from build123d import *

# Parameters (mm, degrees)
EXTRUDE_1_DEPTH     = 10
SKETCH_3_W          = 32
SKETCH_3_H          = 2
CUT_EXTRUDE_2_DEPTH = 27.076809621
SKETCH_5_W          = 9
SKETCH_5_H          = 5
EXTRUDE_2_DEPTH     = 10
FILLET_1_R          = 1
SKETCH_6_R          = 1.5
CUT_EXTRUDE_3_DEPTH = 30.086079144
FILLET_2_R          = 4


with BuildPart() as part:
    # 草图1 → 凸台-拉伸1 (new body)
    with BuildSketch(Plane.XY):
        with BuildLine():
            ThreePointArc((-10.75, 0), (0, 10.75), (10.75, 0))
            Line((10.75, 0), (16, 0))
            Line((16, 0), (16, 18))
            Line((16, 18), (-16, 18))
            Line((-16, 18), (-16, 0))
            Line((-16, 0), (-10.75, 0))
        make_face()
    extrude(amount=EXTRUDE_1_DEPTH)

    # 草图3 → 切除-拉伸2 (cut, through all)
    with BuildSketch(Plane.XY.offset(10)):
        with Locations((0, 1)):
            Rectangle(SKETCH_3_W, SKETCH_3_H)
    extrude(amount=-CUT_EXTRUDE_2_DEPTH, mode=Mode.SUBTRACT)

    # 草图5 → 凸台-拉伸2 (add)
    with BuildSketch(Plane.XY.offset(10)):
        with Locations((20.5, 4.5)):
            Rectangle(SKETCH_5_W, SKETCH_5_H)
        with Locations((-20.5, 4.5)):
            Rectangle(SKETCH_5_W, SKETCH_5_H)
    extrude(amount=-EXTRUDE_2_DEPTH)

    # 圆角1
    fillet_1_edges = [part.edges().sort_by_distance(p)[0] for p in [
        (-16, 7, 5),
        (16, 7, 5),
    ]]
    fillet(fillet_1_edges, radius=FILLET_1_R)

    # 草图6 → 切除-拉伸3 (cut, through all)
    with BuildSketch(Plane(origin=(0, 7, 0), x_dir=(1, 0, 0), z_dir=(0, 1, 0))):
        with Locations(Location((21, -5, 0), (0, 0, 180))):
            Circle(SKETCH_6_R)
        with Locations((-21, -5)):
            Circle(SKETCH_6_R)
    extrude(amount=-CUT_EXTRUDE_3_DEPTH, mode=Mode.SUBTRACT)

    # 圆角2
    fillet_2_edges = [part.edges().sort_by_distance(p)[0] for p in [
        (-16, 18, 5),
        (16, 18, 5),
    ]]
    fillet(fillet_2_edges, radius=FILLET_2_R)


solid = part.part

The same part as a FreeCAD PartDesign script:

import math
import FreeCAD as App
import Part
import Sketcher
Q = App.Units.Quantity


def edges_at(feature, points):
    """Names of the edges that pass closest to the given points."""
    edges = feature.Shape.Edges
    near = lambda p: min(range(len(edges)), key=lambda i: edges[i].distToShape(Part.Vertex(*p))[0])
    return sorted({f"Edge{near(p) + 1}" for p in points})

doc = App.newDocument("Part")
params = doc.addObject("Spreadsheet::Sheet", "Params")
for row, (alias, value) in enumerate([
    ("sketch1_width", "32 mm"),
    ("sketch1_height", "18 mm"),
    ("sketch1_radius", "10.75 mm"),
    ("pad1_length", "10 mm"),
    ("sketch2_width", "32 mm"),
    ("sketch2_height", "2 mm"),
    ("sketch3_width", "9 mm"),
    ("sketch3_height", "5 mm"),
    ("pad2_length", "10 mm"),
    ("fillet_radius", "1 mm"),
    ("sketch4_diameter", "3 mm"),
    ("fillet2_radius", "4 mm"),
], start=1):
    params.set(f"A{row}", alias)
    params.set(f"B{row}", "=" + value)
    params.setAlias(f"B{row}", alias)

body = doc.addObject("PartDesign::Body", "Body")

# Sketch on XY plane
sketch1 = body.newObject("Sketcher::SketchObject", "Sketch")
sketch1.AttachmentSupport = (doc.getObject("XY_Plane"), [""])
sketch1.MapMode = "FlatFace"
sketch1.addGeometry([
    Part.ArcOfCircle(Part.Circle(App.Vector(0, 0, 0), App.Vector(0, 0, 1), 11), math.radians(0), math.radians(180)),  # 0
    Part.LineSegment(App.Vector(11, 0, 0), App.Vector(16, 0, 0)),  # 1
    Part.LineSegment(App.Vector(16, 0, 0), App.Vector(16, 18, 0)),  # 2
    Part.LineSegment(App.Vector(16, 18, 0), App.Vector(-16, 18, 0)),  # 3
    Part.LineSegment(App.Vector(-16, 18, 0), App.Vector(-16, 0, 0)),  # 4
    Part.LineSegment(App.Vector(-16, 0, 0), App.Vector(-11, 0, 0)),  # 5
], False)
sketch1.addConstraint([
    Sketcher.Constraint("Coincident", 0, 1, 1, 1),
    Sketcher.Constraint("Coincident", 1, 2, 2, 1),
    Sketcher.Constraint("Coincident", 2, 2, 3, 1),
    Sketcher.Constraint("Coincident", 3, 2, 4, 1),
    Sketcher.Constraint("Coincident", 4, 2, 5, 1),
    Sketcher.Constraint("Coincident", 5, 2, 0, 2),
    Sketcher.Constraint("Horizontal", 1),
    Sketcher.Constraint("Vertical", 2),
    Sketcher.Constraint("Horizontal", 3),
    Sketcher.Constraint("Vertical", 4),
    Sketcher.Constraint("Horizontal", 5),
    Sketcher.Constraint("Coincident", 0, 3, -1, 1),
    Sketcher.Constraint("Symmetric", 1, 2, 4, 2, -1, 1),
    Sketcher.Constraint("PointOnObject", 0, 1, -1),
    Sketcher.Constraint("DistanceX", 3, 2, 3, 1, Q("32 mm")),
    Sketcher.Constraint("DistanceY", 2, 1, 2, 2, Q("18 mm")),
    Sketcher.Constraint("Radius", 0, Q("10.75 mm")),
])
sketch1.setExpression("Constraints[14]", "Params.sketch1_width")
sketch1.setExpression("Constraints[15]", "Params.sketch1_height")
sketch1.setExpression("Constraints[16]", "Params.sketch1_radius")
pad1 = body.newObject("PartDesign::Pad", "Pad")
pad1.Profile = sketch1
pad1.setExpression("Length", "Params.pad1_length")

# Sketch on XY plane
sketch2 = body.newObject("Sketcher::SketchObject", "Sketch001")
sketch2.AttachmentSupport = (doc.getObject("XY_Plane"), [""])
sketch2.MapMode = "FlatFace"
sketch2.AttachmentOffset = App.Placement(App.Vector(0, 0, 10), App.Rotation())
sketch2.addGeometry([
    Part.LineSegment(App.Vector(-16, 2, 0), App.Vector(-16, 0, 0)),
    Part.LineSegment(App.Vector(-16, 0, 0), App.Vector(16, 0, 0)),
    Part.LineSegment(App.Vector(16, 0, 0), App.Vector(16, 2, 0)),
    Part.LineSegment(App.Vector(16, 2, 0), App.Vector(-16, 2, 0)),
], False)
sketch2.addConstraint([
    Sketcher.Constraint("Coincident", 0, 2, 1, 1),
    Sketcher.Constraint("Coincident", 1, 2, 2, 1),
    Sketcher.Constraint("Coincident", 2, 2, 3, 1),
    Sketcher.Constraint("Coincident", 3, 2, 0, 1),
    Sketcher.Constraint("Vertical", 0),
    Sketcher.Constraint("Horizontal", 1),
    Sketcher.Constraint("Vertical", 2),
    Sketcher.Constraint("Horizontal", 3),
    Sketcher.Constraint("Symmetric", 0, 2, 1, 2, -1, 1),
    Sketcher.Constraint("DistanceX", 1, 1, 1, 2, Q("32 mm")),
    Sketcher.Constraint("DistanceY", 0, 2, 0, 1, Q("2 mm")),
])
sketch2.setExpression("Constraints[9]", "Params.sketch2_width")
sketch2.setExpression("Constraints[10]", "Params.sketch2_height")
pocket1 = body.newObject("PartDesign::Pocket", "Pocket")
pocket1.Profile = sketch2
pocket1.Type = "ThroughAll"

# Sketch on XY plane
sketch3 = body.newObject("Sketcher::SketchObject", "Sketch002")
sketch3.AttachmentSupport = (doc.getObject("XY_Plane"), [""])
sketch3.MapMode = "FlatFace"
sketch3.AttachmentOffset = App.Placement(App.Vector(0, 0, 10), App.Rotation())
sketch3.addGeometry([
    Part.LineSegment(App.Vector(16, 7, 0), App.Vector(16, 2, 0)),  # 0
    Part.LineSegment(App.Vector(16, 2, 0), App.Vector(25, 2, 0)),  # 1
    Part.LineSegment(App.Vector(25, 2, 0), App.Vector(25, 7, 0)),  # 2
    Part.LineSegment(App.Vector(25, 7, 0), App.Vector(16, 7, 0)),  # 3
    Part.LineSegment(App.Vector(-25, 7, 0), App.Vector(-25, 2, 0)),  # 4
    Part.LineSegment(App.Vector(-25, 2, 0), App.Vector(-16, 2, 0)),  # 5
    Part.LineSegment(App.Vector(-16, 2, 0), App.Vector(-16, 7, 0)),  # 6
    Part.LineSegment(App.Vector(-16, 7, 0), App.Vector(-25, 7, 0)),  # 7
], False)
sketch3.addConstraint([
    Sketcher.Constraint("Coincident", 0, 2, 1, 1),
    Sketcher.Constraint("Coincident", 1, 2, 2, 1),
    Sketcher.Constraint("Coincident", 2, 2, 3, 1),
    Sketcher.Constraint("Coincident", 3, 2, 0, 1),
    Sketcher.Constraint("Coincident", 4, 2, 5, 1),
    Sketcher.Constraint("Coincident", 5, 2, 6, 1),
    Sketcher.Constraint("Coincident", 6, 2, 7, 1),
    Sketcher.Constraint("Coincident", 7, 2, 4, 1),
    Sketcher.Constraint("Vertical", 0),
    Sketcher.Constraint("Horizontal", 1),
    Sketcher.Constraint("Vertical", 2),
    Sketcher.Constraint("Horizontal", 3),
    Sketcher.Constraint("Vertical", 4),
    Sketcher.Constraint("Horizontal", 5),
    Sketcher.Constraint("Vertical", 6),
    Sketcher.Constraint("Horizontal", 7),
    Sketcher.Constraint("Symmetric", 1, 2, 4, 2, -2),
    Sketcher.Constraint("Symmetric", 3, 2, 6, 2, -2),
    Sketcher.Constraint("DistanceX", 1, 1, 1, 2, Q("9 mm")),
    Sketcher.Constraint("DistanceY", 0, 2, 0, 1, Q("5 mm")),
    Sketcher.Constraint("DistanceX", -1, 1, 0, 2, Q("16 mm")),
    Sketcher.Constraint("DistanceY", -1, 1, 0, 2, Q("2 mm")),
])
sketch3.setExpression("Constraints[18]", "Params.sketch3_width")
sketch3.setExpression("Constraints[19]", "Params.sketch3_height")
pad2 = body.newObject("PartDesign::Pad", "Pad001")
pad2.Profile = sketch3
pad2.setExpression("Length", "Params.pad2_length")
pad2.Reversed = True
doc.recompute()

fillet = body.newObject("PartDesign::Fillet", "Fillet")
fillet.Base = (pad2, edges_at(pad2, [(-16, 7, 5), (16, 7, 5)]))
fillet.setExpression("Radius", "Params.fillet_radius")

# Sketch on XZ plane
sketch4 = body.newObject("Sketcher::SketchObject", "Sketch003")
sketch4.AttachmentSupport = (doc.getObject("XZ_Plane"), [""])
sketch4.MapMode = "FlatFace"
sketch4.AttachmentOffset = App.Placement(App.Vector(0, 0, -7), App.Rotation())
sketch4.addGeometry([
    Part.Circle(App.Vector(21, 5, 0), App.Vector(0, 0, 1), 1.5),
    Part.Circle(App.Vector(-21, 5, 0), App.Vector(0, 0, 1), 1.5),
], False)
sketch4.addConstraint([
    Sketcher.Constraint("Equal", 0, 1),
    Sketcher.Constraint("Symmetric", 0, 3, 1, 3, -2),
    Sketcher.Constraint("Diameter", 0, Q("3 mm")),
    Sketcher.Constraint("DistanceX", -1, 1, 0, 3, Q("21 mm")),
    Sketcher.Constraint("DistanceY", -1, 1, 0, 3, Q("5 mm")),
])
sketch4.setExpression("Constraints[2]", "Params.sketch4_diameter")
pocket2 = body.newObject("PartDesign::Pocket", "Pocket001")
pocket2.Profile = sketch4
pocket2.Type = "ThroughAll"
pocket2.Reversed = True
doc.recompute()

fillet2 = body.newObject("PartDesign::Fillet", "Fillet001")
fillet2.Base = (pocket2, edges_at(pocket2, [(-16, 18, 5), (16, 18, 5)]))
fillet2.setExpression("Radius", "Params.fillet2_radius")

doc.recompute()
